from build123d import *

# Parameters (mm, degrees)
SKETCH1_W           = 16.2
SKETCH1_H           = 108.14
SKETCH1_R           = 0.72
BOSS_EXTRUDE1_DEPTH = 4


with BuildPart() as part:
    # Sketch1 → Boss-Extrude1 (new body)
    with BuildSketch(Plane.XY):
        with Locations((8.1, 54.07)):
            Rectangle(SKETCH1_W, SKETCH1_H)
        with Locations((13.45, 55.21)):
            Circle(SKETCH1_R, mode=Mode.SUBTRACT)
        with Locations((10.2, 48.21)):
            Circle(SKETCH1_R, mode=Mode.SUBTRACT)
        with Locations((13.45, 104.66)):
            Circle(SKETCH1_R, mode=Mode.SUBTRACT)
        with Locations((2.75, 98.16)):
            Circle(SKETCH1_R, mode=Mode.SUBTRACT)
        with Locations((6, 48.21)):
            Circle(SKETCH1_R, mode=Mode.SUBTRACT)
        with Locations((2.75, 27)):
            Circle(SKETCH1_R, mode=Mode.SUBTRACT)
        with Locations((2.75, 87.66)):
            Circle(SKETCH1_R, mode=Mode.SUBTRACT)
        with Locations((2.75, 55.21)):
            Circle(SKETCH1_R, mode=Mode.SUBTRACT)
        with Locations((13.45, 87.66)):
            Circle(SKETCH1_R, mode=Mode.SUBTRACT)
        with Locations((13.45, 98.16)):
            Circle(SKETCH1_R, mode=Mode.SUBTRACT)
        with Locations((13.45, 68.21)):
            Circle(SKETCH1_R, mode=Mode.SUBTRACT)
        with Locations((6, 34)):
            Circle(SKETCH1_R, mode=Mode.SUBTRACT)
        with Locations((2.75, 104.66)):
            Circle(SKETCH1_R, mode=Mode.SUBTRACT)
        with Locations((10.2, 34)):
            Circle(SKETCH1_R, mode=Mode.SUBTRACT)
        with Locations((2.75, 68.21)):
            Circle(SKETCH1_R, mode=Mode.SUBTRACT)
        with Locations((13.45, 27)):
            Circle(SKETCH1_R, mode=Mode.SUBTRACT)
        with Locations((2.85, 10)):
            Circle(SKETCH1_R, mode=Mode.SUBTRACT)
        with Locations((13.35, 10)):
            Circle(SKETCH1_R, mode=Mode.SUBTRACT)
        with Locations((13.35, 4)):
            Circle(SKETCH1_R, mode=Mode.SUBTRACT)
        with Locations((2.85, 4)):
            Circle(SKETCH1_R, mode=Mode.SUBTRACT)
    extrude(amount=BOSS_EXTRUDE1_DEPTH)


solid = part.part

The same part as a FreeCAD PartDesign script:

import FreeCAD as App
import Part
import Sketcher

V = App.Vector


def add_polygon(sketch, points):
    """Adds a closed chain of lines whose ends are joined by coincident constraints."""
    first, n = sketch.GeometryCount, len(points)
    for a, b in zip(points, points[1:] + points[:1]):
        sketch.addGeometry(Part.LineSegment(App.Vector(*a, 0), App.Vector(*b, 0)), False)
    for i in range(n):
        sketch.addConstraint(Sketcher.Constraint("Coincident", first + i, 2, first + (i + 1) % n, 1))

doc = App.newDocument("Part")
body = doc.addObject("PartDesign::Body", "Body")

sketch1 = body.newObject("Sketcher::SketchObject", "Sketch")
sketch1.AttachmentSupport = (doc.getObject("XY_Plane"), [""])
sketch1.MapMode = "FlatFace"
add_polygon(sketch1, [(0, 108.1), (0, 0), (16.2, 0), (16.2, 108.1)])
sketch1.addGeometry(Part.Circle(V(2.9, 4, 0), V(0, 0, 1), 0.7), False)
sketch1.addGeometry(Part.Circle(V(2.9, 10, 0), V(0, 0, 1), 0.7), False)
sketch1.addGeometry(Part.Circle(V(2.8, 27, 0), V(0, 0, 1), 0.7), False)
sketch1.addGeometry(Part.Circle(V(6, 34, 0), V(0, 0, 1), 0.7), False)
sketch1.addGeometry(Part.Circle(V(6, 48.2, 0), V(0, 0, 1), 0.7), False)
sketch1.addGeometry(Part.Circle(V(13.3, 4, 0), V(0, 0, 1), 0.7), False)
sketch1.addGeometry(Part.Circle(V(13.3, 10, 0), V(0, 0, 1), 0.7), False)
sketch1.addGeometry(Part.Circle(V(13.4, 27, 0), V(0, 0, 1), 0.7), False)
sketch1.addGeometry(Part.Circle(V(10.2, 34, 0), V(0, 0, 1), 0.7), False)
sketch1.addGeometry(Part.Circle(V(10.2, 48.2, 0), V(0, 0, 1), 0.7), False)
sketch1.addGeometry(Part.Circle(V(2.8, 55.2, 0), V(0, 0, 1), 0.7), False)
sketch1.addGeometry(Part.Circle(V(2.8, 68.2, 0), V(0, 0, 1), 0.7), False)
sketch1.addGeometry(Part.Circle(V(2.8, 87.7, 0), V(0, 0, 1), 0.7), False)
sketch1.addGeometry(Part.Circle(V(2.8, 98.2, 0), V(0, 0, 1), 0.7), False)
sketch1.addGeometry(Part.Circle(V(2.8, 104.7, 0), V(0, 0, 1), 0.7), False)
sketch1.addGeometry(Part.Circle(V(13.4, 55.2, 0), V(0, 0, 1), 0.7), False)
sketch1.addGeometry(Part.Circle(V(13.4, 68.2, 0), V(0, 0, 1), 0.7), False)
sketch1.addGeometry(Part.Circle(V(13.4, 87.7, 0), V(0, 0, 1), 0.7), False)
sketch1.addGeometry(Part.Circle(V(13.4, 98.2, 0), V(0, 0, 1), 0.7), False)
sketch1.addGeometry(Part.Circle(V(13.4, 104.7, 0), V(0, 0, 1), 0.7), False)
sketch1.addConstraint([
    Sketcher.Constraint("Vertical", 0),
    Sketcher.Constraint("Horizontal", 1),
    Sketcher.Constraint("Vertical", 2),
    Sketcher.Constraint("Horizontal", 3),
    Sketcher.Constraint("Coincident", 0, 2, -1, 1),
    Sketcher.Constraint("Equal", 4, 5),
    Sketcher.Constraint("Equal", 5, 6),
    Sketcher.Constraint("Equal", 6, 7),
    Sketcher.Constraint("Equal", 7, 8),
    Sketcher.Constraint("Equal", 8, 9),
    Sketcher.Constraint("Equal", 9, 10),
    Sketcher.Constraint("Equal", 10, 11),
    Sketcher.Constraint("Equal", 11, 12),
    Sketcher.Constraint("Equal", 12, 13),
    Sketcher.Constraint("Equal", 13, 14),
    Sketcher.Constraint("Equal", 14, 15),
    Sketcher.Constraint("Equal", 15, 16),
    Sketcher.Constraint("Equal", 16, 17),
    Sketcher.Constraint("Equal", 17, 18),
    Sketcher.Constraint("Equal", 18, 19),
    Sketcher.Constraint("Equal", 19, 20),
    Sketcher.Constraint("Equal", 20, 21),
    Sketcher.Constraint("Equal", 21, 22),
    Sketcher.Constraint("Equal", 22, 23),
    Sketcher.Constraint("Horizontal", 4, 3, 9, 3),
    Sketcher.Constraint("Horizontal", 5, 3, 10, 3),
    Sketcher.Constraint("Horizontal", 6, 3, 11, 3),
    Sketcher.Constraint("Horizontal", 7, 3, 12, 3),
    Sketcher.Constraint("Horizontal", 8, 3, 13, 3),
    Sketcher.Constraint("Horizontal", 14, 3, 19, 3),
    Sketcher.Constraint("Horizontal", 15, 3, 20, 3),
    Sketcher.Constraint("Horizontal", 16, 3, 21, 3),
    Sketcher.Constraint("Horizontal", 17, 3, 22, 3),
    Sketcher.Constraint("Horizontal", 18, 3, 23, 3),
    Sketcher.Constraint("Vertical", 4, 3, 5, 3),
    Sketcher.Constraint("Vertical", 7, 3, 8, 3),
    Sketcher.Constraint("Vertical", 9, 3, 10, 3),
    Sketcher.Constraint("Vertical", 12, 3, 13, 3),
    Sketcher.Constraint("Vertical", 6, 3, 14, 3),
    Sketcher.Constraint("Vertical", 14, 3, 15, 3),
    Sketcher.Constraint("Vertical", 15, 3, 16, 3),
    Sketcher.Constraint("Vertical", 16, 3, 17, 3),
    Sketcher.Constraint("Vertical", 17, 3, 18, 3),
    Sketcher.Constraint("Vertical", 11, 3, 19, 3),
    Sketcher.Constraint("Vertical", 19, 3, 20, 3),
    Sketcher.Constraint("Vertical", 20, 3, 21, 3),
    Sketcher.Constraint("Vertical", 21, 3, 22, 3),
    Sketcher.Constraint("Vertical", 22, 3, 23, 3),
    Sketcher.Constraint("Diameter", 4, 1.44),
    Sketcher.Constraint("DistanceX", 1, 1, 1, 2, 16.2),
    Sketcher.Constraint("DistanceY", -1, 1, 4, 3, 4.0),
    Sketcher.Constraint("DistanceY", -1, 1, 5, 3, 10.0),
    Sketcher.Constraint("DistanceY", -1, 1, 6, 3, 27.0),
    Sketcher.Constraint("DistanceX", -1, 1, 7, 3, 6.0),
    Sketcher.Constraint("DistanceY", -1, 1, 7, 3, 34.0),
    Sketcher.Constraint("DistanceY", 8, 3, 14, 3, 7.0),
    Sketcher.Constraint("DistanceY", 14, 3, 15, 3, 13.0),
    Sketcher.Constraint("DistanceY", 16, 3, 18, 3, 17.0),
    Sketcher.Constraint("DistanceY", 0, 2, 0, 1, 108.14),
    Sketcher.Constraint("DistanceX", -1, 1, 12, 3, 10.2),
    Sketcher.Constraint("DistanceX", 6, 3, 5, 3, 0.1),
    Sketcher.Constraint("DistanceX", 4, 3, 9, 3, 10.5),
    Sketcher.Constraint("DistanceX", 6, 3, 11, 3, 10.7),
    Sketcher.Constraint("DistanceY", 16, 3, 17, 3, 10.5),
    Sketcher.Constraint("DistanceX", -1, 1, 4, 3, 2.85),
    Sketcher.Constraint("DistanceY", -1, 1, 8, 3, 48.21),
    Sketcher.Constraint("DistanceY", -1, 1, 16, 3, 87.66),
])
pad1 = body.newObject("PartDesign::Pad", "Pad")
pad1.Profile = sketch1
pad1.Length = 4

doc.recompute()
